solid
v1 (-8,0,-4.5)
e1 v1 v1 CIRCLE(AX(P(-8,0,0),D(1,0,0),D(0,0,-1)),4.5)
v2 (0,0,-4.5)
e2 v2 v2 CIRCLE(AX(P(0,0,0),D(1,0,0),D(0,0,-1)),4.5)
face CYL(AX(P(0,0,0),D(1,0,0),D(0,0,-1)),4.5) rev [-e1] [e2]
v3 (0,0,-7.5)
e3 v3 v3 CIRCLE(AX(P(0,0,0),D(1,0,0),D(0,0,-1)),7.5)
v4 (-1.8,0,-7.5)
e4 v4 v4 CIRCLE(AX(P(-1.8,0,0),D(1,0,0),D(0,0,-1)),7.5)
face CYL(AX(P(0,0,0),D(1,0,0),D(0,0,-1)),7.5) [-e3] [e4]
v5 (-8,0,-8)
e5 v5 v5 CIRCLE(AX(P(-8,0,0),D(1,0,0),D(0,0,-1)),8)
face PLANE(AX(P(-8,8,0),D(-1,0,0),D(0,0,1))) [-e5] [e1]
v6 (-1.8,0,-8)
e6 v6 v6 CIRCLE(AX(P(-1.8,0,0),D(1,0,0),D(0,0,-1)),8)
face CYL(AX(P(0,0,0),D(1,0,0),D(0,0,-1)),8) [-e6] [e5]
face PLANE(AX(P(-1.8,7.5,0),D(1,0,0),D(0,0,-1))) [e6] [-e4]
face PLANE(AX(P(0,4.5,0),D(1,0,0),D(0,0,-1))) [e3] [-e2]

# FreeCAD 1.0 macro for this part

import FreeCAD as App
import Part
import Sketcher

V = App.Vector
Q = App.Units.Quantity

doc = App.newDocument("Part")
body = doc.addObject("PartDesign::Body", "Body")

# Sketch on XY plane
sketch1 = doc.addObject("Sketcher::SketchObject", "Sketch")
body.addObject(sketch1)
sketch1.AttachmentSupport = (doc.XY_Plane, [""])
sketch1.MapMode = "FlatFace"
sketch1.addGeometry(Part.LineSegment(V(0, 4.5, 0), V(0, 7.5, 0)), False)
sketch1.addGeometry(Part.LineSegment(V(0, 7.5, 0), V(-1.8, 7.5, 0)), False)
sketch1.addGeometry(Part.LineSegment(V(-1.8, 7.5, 0), V(-1.8, 8, 0)), False)
sketch1.addGeometry(Part.LineSegment(V(-1.8, 8, 0), V(-8, 8, 0)), False)
sketch1.addGeometry(Part.LineSegment(V(-8, 8, 0), V(-8, 4.5, 0)), False)
sketch1.addGeometry(Part.LineSegment(V(-8, 4.5, 0), V(0, 4.5, 0)), False)
sketch1.addConstraint(Sketcher.Constraint("Coincident", 0, 2, 1, 1))
sketch1.addConstraint(Sketcher.Constraint("Coincident", 1, 2, 2, 1))
sketch1.addConstraint(Sketcher.Constraint("Coincident", 2, 2, 3, 1))
sketch1.addConstraint(Sketcher.Constraint("Coincident", 3, 2, 4, 1))
sketch1.addConstraint(Sketcher.Constraint("Coincident", 4, 2, 5, 1))
sketch1.addConstraint(Sketcher.Constraint("Coincident", 5, 2, 0, 1))
sketch1.addConstraint(Sketcher.Constraint("Vertical", 0))
sketch1.addConstraint(Sketcher.Constraint("Horizontal", 1))
sketch1.addConstraint(Sketcher.Constraint("Vertical", 2))
sketch1.addConstraint(Sketcher.Constraint("Horizontal", 3))
sketch1.addConstraint(Sketcher.Constraint("Vertical", 4))
sketch1.addConstraint(Sketcher.Constraint("Horizontal", 5))
sketch1.addConstraint(Sketcher.Constraint("PointOnObject", 0, 2, -2))
sketch1.addConstraint(Sketcher.Constraint("DistanceX", 5, 1, 5, 2, Q("8 mm")))
sketch1.addConstraint(Sketcher.Constraint("DistanceY", 0, 1, 0, 2, Q("3 mm")))
sketch1.addConstraint(Sketcher.Constraint("DistanceX", 1, 2, 1, 1, Q("1.8 mm")))
sketch1.addConstraint(Sketcher.Constraint("DistanceY", 2, 1, 2, 2, Q("0.5 mm")))
sketch1.addConstraint(Sketcher.Constraint("DistanceY", -1, 1, 2, 2, Q("8 mm")))
revolution = doc.addObject("PartDesign::Revolution", "Revolution")
body.addObject(revolution)
revolution.Profile = sketch1
revolution.ReferenceAxis = (sketch1, ["H_Axis"])
revolution.Angle = 360

doc.recompute()
